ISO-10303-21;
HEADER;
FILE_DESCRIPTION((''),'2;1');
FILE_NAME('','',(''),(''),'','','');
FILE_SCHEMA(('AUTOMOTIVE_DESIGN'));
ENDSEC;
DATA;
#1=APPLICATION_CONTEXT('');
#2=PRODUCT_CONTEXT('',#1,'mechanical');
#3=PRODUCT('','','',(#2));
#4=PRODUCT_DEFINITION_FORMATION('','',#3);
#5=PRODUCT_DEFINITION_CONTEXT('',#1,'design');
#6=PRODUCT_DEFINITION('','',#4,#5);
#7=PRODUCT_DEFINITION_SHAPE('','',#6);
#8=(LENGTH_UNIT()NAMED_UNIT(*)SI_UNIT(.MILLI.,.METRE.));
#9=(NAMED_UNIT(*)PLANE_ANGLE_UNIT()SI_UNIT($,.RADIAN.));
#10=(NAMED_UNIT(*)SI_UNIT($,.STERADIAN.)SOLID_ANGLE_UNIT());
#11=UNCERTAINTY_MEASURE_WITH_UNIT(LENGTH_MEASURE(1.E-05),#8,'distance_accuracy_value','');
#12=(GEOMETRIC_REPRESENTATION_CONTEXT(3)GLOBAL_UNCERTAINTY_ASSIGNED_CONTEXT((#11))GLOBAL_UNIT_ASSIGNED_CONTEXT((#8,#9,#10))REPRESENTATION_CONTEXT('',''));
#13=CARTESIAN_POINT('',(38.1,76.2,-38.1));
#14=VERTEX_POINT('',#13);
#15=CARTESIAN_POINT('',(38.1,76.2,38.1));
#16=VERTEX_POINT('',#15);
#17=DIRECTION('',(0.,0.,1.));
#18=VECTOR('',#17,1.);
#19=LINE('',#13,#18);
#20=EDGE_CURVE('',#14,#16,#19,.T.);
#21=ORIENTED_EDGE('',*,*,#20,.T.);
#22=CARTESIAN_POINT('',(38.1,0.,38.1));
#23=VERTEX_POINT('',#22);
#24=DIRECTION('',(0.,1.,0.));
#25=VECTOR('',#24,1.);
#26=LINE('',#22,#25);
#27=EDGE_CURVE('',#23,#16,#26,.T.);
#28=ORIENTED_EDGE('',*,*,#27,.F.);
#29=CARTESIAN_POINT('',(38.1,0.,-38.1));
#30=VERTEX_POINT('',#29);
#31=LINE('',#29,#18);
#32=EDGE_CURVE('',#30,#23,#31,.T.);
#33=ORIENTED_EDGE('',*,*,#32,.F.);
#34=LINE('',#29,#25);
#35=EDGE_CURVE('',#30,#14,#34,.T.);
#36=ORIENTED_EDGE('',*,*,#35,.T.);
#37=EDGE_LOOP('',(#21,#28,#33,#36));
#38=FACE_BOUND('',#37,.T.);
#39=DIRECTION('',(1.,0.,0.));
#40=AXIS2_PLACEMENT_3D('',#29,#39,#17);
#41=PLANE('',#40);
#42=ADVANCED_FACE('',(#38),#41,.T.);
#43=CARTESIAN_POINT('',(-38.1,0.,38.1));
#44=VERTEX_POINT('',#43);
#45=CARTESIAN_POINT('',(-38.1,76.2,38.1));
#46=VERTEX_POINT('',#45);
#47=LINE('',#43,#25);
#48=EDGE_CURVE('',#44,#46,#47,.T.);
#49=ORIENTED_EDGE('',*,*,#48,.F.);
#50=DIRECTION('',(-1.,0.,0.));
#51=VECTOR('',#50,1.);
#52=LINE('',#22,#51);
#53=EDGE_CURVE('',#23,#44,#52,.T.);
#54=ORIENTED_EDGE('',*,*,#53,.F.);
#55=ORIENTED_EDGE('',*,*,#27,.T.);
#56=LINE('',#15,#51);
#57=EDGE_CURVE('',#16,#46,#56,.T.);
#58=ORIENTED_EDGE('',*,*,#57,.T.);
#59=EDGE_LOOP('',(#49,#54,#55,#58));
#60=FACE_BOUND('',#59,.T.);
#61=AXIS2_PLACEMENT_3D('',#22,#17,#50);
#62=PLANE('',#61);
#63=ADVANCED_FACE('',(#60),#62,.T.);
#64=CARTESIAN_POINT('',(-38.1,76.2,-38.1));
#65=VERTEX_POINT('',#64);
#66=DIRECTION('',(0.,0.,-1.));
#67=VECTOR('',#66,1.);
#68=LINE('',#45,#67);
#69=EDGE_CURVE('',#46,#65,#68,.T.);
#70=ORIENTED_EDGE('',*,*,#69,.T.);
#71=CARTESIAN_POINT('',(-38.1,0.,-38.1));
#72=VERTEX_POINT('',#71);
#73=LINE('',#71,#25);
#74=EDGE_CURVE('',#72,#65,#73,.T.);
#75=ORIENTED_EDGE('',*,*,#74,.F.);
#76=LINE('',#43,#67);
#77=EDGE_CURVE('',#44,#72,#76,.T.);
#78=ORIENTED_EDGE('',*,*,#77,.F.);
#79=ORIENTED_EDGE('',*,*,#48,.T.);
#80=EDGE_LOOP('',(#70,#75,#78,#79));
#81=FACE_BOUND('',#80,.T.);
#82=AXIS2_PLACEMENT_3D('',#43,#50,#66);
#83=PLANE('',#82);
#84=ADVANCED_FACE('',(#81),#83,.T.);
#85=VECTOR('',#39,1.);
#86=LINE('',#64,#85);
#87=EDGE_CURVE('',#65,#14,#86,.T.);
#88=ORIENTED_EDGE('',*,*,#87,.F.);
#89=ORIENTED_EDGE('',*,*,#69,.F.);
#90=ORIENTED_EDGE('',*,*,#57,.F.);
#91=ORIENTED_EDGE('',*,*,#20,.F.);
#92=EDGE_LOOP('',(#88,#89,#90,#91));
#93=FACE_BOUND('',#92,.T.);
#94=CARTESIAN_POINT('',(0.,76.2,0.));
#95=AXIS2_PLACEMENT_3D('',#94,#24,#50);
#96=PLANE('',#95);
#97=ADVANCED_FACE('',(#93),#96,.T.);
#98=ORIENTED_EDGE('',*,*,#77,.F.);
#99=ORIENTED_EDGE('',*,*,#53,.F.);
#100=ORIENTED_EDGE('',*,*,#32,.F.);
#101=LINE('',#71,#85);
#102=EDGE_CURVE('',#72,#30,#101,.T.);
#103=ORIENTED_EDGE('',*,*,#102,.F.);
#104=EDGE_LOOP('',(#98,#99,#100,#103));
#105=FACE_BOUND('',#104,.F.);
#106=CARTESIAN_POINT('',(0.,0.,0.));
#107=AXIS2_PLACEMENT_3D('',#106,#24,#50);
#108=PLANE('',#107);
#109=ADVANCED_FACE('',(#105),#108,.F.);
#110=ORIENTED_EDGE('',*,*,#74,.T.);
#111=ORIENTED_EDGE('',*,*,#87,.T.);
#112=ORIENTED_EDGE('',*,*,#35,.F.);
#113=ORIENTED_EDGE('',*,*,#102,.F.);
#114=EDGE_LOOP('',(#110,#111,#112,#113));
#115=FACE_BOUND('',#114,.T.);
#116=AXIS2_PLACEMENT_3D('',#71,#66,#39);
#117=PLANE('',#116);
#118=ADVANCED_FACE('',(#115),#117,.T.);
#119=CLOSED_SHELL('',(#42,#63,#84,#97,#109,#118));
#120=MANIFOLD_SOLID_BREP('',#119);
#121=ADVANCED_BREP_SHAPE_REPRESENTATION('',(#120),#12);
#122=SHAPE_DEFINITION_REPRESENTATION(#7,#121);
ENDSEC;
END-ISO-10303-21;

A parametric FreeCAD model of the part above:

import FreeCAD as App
import Part
import Sketcher
Q = App.Units.Quantity


def add_polygon(sketch, points):
    """Adds a closed chain of lines whose ends are joined by coincident constraints."""
    first, n = sketch.GeometryCount, len(points)
    for a, b in zip(points, points[1:] + points[:1]):
        sketch.addGeometry(Part.LineSegment(App.Vector(*a, 0), App.Vector(*b, 0)), False)
    for i in range(n):
        sketch.addConstraint(Sketcher.Constraint("Coincident", first + i, 2, first + (i + 1) % n, 1))

doc = App.newDocument("Part")
body = doc.addObject("PartDesign::Body", "Body")

sketch1 = doc.addObject("Sketcher::SketchObject", "Sketch")
body.addObject(sketch1)
sketch1.AttachmentSupport = (doc.XZ_Plane, [""])
sketch1.MapMode = "FlatFace"
add_polygon(sketch1, [(-38, 38), (38, 38), (38, -38), (-38, -38)])
sketch1.addConstraint(Sketcher.Constraint("Horizontal", 0))
sketch1.addConstraint(Sketcher.Constraint("Vertical", 1))
sketch1.addConstraint(Sketcher.Constraint("Horizontal", 2))
sketch1.addConstraint(Sketcher.Constraint("Vertical", 3))
sketch1.addConstraint(Sketcher.Constraint("Symmetric", 0, 2, 2, 2, -1, 1))
sketch1.addConstraint(Sketcher.Constraint("Equal", 2, 1))
sketch1.addConstraint(Sketcher.Constraint("DistanceX", 0, 1, 0, 2, Q("3 in")))
pad1 = doc.addObject("PartDesign::Pad", "Pad")
body.addObject(pad1)
pad1.Profile = sketch1
pad1.Length = Q("3 in")
pad1.Reversed = True

doc.recompute()
